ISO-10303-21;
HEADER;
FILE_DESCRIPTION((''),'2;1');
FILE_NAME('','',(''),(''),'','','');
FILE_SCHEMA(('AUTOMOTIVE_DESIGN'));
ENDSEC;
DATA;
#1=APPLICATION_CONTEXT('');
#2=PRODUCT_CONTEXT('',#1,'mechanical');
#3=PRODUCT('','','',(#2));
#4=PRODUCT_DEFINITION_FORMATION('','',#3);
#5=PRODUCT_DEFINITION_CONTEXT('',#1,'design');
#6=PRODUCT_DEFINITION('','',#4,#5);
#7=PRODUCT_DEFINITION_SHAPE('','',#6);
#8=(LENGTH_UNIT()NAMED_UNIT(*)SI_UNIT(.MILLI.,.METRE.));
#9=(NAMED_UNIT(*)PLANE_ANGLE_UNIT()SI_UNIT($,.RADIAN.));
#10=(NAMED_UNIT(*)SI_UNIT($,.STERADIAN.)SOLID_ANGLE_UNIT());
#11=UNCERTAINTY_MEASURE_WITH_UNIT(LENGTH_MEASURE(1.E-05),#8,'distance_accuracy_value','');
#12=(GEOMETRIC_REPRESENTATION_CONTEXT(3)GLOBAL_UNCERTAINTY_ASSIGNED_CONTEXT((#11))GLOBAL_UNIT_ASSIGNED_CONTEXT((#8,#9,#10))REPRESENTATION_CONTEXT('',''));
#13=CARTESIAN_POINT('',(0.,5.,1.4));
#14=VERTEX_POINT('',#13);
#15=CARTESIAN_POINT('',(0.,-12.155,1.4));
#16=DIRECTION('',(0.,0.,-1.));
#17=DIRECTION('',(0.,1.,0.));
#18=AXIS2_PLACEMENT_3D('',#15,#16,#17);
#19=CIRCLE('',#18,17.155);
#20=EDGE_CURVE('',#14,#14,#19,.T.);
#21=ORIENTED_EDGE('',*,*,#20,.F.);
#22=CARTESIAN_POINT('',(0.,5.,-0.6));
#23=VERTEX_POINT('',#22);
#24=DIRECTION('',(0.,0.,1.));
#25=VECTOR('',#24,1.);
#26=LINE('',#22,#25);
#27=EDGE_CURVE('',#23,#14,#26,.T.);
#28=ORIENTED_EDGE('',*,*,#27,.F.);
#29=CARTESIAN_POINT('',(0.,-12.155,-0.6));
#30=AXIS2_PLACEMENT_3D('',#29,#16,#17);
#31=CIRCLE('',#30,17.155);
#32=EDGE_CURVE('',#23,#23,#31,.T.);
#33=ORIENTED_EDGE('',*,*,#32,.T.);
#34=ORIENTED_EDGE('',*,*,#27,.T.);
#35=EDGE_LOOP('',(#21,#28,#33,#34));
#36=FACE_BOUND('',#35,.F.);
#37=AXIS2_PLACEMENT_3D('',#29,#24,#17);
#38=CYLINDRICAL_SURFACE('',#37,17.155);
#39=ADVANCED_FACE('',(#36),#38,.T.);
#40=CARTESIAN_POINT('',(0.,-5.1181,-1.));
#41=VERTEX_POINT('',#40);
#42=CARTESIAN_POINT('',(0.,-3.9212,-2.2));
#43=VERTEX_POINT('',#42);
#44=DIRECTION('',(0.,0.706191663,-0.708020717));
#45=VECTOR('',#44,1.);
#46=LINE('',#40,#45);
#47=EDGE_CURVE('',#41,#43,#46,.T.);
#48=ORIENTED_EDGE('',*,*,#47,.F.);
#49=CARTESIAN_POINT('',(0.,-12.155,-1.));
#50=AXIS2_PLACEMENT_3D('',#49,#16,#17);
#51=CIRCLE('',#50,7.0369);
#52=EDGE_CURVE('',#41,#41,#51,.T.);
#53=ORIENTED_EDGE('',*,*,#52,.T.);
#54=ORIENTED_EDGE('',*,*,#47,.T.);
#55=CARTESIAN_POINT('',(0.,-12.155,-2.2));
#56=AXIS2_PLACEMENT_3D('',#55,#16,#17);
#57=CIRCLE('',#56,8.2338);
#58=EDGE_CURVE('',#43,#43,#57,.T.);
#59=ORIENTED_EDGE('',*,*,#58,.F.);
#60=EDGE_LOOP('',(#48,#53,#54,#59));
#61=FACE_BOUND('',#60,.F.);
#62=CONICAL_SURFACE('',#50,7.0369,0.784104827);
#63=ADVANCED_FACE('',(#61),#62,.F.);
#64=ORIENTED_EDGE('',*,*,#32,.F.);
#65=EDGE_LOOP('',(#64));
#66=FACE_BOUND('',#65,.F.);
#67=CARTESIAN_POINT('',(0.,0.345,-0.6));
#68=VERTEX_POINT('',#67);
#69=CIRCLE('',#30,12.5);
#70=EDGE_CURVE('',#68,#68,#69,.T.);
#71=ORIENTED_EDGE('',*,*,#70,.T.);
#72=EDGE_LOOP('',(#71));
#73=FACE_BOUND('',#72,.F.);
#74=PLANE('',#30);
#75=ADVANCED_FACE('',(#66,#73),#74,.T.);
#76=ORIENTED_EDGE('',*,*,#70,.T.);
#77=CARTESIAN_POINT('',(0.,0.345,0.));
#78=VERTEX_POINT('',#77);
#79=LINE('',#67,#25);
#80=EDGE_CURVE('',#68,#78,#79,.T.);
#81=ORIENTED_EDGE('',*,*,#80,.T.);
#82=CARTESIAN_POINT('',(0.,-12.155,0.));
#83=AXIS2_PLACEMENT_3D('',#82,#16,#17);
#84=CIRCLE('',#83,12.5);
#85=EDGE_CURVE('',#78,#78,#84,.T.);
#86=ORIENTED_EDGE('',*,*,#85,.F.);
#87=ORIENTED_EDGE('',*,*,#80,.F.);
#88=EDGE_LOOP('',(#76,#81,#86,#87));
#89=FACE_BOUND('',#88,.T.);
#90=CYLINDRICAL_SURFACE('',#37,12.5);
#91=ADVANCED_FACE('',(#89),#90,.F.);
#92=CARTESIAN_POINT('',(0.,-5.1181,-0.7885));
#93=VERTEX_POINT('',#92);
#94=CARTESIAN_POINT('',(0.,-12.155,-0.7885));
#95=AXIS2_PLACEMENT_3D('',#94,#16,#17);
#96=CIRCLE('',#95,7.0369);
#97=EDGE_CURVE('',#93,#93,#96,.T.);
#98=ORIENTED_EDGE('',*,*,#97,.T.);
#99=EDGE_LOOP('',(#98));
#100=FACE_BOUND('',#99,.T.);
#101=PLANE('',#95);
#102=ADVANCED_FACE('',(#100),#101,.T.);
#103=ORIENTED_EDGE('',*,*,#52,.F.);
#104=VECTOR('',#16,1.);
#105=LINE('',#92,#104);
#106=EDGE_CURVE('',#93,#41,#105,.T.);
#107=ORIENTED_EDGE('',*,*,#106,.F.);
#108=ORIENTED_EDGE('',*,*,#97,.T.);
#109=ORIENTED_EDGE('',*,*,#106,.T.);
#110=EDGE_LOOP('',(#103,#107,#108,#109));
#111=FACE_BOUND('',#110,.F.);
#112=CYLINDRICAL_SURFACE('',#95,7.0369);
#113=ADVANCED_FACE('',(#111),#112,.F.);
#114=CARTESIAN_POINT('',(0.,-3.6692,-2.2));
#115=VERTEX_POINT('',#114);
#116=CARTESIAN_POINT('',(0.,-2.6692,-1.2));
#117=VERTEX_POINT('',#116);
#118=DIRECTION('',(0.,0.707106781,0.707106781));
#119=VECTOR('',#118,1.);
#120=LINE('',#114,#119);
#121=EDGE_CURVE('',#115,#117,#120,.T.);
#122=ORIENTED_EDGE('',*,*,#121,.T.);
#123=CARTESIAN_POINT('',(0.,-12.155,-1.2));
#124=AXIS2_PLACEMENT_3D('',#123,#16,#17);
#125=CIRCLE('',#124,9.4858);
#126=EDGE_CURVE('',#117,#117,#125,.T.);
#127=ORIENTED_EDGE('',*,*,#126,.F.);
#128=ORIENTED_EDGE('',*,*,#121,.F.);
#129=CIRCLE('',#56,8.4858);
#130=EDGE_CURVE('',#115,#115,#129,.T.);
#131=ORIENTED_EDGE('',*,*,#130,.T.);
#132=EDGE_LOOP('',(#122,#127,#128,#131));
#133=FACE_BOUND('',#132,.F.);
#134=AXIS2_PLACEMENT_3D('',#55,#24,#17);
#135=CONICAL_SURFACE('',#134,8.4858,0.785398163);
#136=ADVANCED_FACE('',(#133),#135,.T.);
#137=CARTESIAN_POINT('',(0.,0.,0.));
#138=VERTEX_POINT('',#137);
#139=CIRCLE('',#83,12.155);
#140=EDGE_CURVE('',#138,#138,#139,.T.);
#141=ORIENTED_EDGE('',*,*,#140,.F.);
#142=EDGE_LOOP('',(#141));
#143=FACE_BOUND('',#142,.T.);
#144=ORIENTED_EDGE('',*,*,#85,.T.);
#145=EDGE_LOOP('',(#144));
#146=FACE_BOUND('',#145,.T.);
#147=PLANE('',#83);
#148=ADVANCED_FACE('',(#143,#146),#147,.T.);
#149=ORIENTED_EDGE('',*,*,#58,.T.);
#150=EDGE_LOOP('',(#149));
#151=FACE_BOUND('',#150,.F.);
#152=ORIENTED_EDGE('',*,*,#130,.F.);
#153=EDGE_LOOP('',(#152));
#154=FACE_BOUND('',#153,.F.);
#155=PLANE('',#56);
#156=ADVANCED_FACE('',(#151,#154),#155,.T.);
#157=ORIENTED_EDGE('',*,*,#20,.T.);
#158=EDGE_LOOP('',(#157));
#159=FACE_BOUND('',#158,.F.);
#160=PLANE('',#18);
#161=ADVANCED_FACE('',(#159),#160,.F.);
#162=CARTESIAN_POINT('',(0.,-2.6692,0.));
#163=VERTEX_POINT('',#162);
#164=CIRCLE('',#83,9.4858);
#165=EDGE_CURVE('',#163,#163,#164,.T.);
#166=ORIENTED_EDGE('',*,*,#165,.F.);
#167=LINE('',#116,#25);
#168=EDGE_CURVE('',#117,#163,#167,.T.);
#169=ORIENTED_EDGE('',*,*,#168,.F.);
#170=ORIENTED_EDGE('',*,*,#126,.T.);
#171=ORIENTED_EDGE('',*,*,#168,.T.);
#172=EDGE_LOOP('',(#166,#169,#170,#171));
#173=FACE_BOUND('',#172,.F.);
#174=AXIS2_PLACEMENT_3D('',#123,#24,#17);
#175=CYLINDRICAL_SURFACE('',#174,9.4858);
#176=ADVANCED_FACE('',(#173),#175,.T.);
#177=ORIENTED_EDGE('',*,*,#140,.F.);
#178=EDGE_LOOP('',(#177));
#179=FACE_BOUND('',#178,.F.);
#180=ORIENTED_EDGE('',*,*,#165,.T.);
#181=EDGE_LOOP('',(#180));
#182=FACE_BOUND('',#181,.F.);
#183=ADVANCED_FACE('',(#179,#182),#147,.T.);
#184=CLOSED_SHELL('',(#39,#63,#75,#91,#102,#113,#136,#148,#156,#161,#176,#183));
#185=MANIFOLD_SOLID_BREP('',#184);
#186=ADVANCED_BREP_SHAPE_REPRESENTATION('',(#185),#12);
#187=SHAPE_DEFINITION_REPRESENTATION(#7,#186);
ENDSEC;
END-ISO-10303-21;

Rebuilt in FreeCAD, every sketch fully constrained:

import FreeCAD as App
import Part
import Sketcher

V = App.Vector
Q = App.Units.Quantity


def add_polygon(sketch, points):
    """Adds a closed chain of lines whose ends are joined by coincident constraints."""
    first, n = sketch.GeometryCount, len(points)
    for a, b in zip(points, points[1:] + points[:1]):
        sketch.addGeometry(Part.LineSegment(App.Vector(*a, 0), App.Vector(*b, 0)), False)
    for i in range(n):
        sketch.addConstraint(Sketcher.Constraint("Coincident", first + i, 2, first + (i + 1) % n, 1))

doc = App.newDocument("Part")
body = doc.addObject("PartDesign::Body", "Body")

sketch1 = body.newObject("Sketcher::SketchObject", "Sketch")
sketch1.AttachmentSupport = (doc.getObject("YZ_Plane"), [""])
sketch1.MapMode = "FlatFace"
add_polygon(sketch1, [(0.345, 0), (0.345, -0.6), (5, -0.6), (5, 1.4), (-12.155, 1.4), (-12.155, -0.7885), (-5.1181, -0.7885), (-5.1181, -1), (-3.9212, -2.2), (-3.6692, -2.2), (-2.6692, -1.2), (-2.6692, 0)])
sketch1.addGeometry(Part.LineSegment(V(-12.155, 1.4, 0), V(-12.155, -2.2, 0)), True)
sketch1.addConstraint([
    Sketcher.Constraint("Vertical", 0),
    Sketcher.Constraint("Horizontal", 1),
    Sketcher.Constraint("Vertical", 2),
    Sketcher.Constraint("Horizontal", 3),
    Sketcher.Constraint("Vertical", 4),
    Sketcher.Constraint("Horizontal", 5),
    Sketcher.Constraint("Vertical", 6),
    Sketcher.Constraint("Horizontal", 8),
    Sketcher.Constraint("Vertical", 10),
    Sketcher.Constraint("Horizontal", 11),
    Sketcher.Constraint("Vertical", 12),
    Sketcher.Constraint("Coincident", 12, 1, 3, 2),
    Sketcher.Constraint("PointOnObject", 10, 2, -1),
    Sketcher.Constraint("Horizontal", 8, 2, 12, 2),
    Sketcher.Constraint("DistanceY", 2, 1, 2, 2, 2.0),
    Sketcher.Constraint("Angle", 9, Q("45 deg")),
    Sketcher.Constraint("DistanceY", 0, 2, 0, 1, 0.6),
    Sketcher.Constraint("DistanceY", 10, 1, 10, 2, 1.2),
    Sketcher.Constraint("DistanceY", 12, 2, 12, 1, 3.6),
    Sketcher.Constraint("DistanceX", -1, 1, 1, 2, 5.0),
    Sketcher.Constraint("DistanceY", 6, 2, -1, 1, 1.0),
    Sketcher.Constraint("DistanceX", 3, 2, 0, 2, 12.5),
    Sketcher.Constraint("DistanceX", 1, 1, 1, 2, 4.655),
    Sketcher.Constraint("DistanceX", 5, 1, 5, 2, 7.037),
    Sketcher.Constraint("DistanceX", 8, 1, 8, 2, 0.252),
    Sketcher.Constraint("DistanceX", 11, 1, 11, 2, 3.0142),
    Sketcher.Constraint("DistanceY", 4, 2, 4, 1, 2.1885),
])
revolution = body.newObject("PartDesign::Revolution", "Revolution")
revolution.Profile = sketch1
revolution.ReferenceAxis = (sketch1, ["Axis0"])
revolution.Angle = 360

doc.recompute()
